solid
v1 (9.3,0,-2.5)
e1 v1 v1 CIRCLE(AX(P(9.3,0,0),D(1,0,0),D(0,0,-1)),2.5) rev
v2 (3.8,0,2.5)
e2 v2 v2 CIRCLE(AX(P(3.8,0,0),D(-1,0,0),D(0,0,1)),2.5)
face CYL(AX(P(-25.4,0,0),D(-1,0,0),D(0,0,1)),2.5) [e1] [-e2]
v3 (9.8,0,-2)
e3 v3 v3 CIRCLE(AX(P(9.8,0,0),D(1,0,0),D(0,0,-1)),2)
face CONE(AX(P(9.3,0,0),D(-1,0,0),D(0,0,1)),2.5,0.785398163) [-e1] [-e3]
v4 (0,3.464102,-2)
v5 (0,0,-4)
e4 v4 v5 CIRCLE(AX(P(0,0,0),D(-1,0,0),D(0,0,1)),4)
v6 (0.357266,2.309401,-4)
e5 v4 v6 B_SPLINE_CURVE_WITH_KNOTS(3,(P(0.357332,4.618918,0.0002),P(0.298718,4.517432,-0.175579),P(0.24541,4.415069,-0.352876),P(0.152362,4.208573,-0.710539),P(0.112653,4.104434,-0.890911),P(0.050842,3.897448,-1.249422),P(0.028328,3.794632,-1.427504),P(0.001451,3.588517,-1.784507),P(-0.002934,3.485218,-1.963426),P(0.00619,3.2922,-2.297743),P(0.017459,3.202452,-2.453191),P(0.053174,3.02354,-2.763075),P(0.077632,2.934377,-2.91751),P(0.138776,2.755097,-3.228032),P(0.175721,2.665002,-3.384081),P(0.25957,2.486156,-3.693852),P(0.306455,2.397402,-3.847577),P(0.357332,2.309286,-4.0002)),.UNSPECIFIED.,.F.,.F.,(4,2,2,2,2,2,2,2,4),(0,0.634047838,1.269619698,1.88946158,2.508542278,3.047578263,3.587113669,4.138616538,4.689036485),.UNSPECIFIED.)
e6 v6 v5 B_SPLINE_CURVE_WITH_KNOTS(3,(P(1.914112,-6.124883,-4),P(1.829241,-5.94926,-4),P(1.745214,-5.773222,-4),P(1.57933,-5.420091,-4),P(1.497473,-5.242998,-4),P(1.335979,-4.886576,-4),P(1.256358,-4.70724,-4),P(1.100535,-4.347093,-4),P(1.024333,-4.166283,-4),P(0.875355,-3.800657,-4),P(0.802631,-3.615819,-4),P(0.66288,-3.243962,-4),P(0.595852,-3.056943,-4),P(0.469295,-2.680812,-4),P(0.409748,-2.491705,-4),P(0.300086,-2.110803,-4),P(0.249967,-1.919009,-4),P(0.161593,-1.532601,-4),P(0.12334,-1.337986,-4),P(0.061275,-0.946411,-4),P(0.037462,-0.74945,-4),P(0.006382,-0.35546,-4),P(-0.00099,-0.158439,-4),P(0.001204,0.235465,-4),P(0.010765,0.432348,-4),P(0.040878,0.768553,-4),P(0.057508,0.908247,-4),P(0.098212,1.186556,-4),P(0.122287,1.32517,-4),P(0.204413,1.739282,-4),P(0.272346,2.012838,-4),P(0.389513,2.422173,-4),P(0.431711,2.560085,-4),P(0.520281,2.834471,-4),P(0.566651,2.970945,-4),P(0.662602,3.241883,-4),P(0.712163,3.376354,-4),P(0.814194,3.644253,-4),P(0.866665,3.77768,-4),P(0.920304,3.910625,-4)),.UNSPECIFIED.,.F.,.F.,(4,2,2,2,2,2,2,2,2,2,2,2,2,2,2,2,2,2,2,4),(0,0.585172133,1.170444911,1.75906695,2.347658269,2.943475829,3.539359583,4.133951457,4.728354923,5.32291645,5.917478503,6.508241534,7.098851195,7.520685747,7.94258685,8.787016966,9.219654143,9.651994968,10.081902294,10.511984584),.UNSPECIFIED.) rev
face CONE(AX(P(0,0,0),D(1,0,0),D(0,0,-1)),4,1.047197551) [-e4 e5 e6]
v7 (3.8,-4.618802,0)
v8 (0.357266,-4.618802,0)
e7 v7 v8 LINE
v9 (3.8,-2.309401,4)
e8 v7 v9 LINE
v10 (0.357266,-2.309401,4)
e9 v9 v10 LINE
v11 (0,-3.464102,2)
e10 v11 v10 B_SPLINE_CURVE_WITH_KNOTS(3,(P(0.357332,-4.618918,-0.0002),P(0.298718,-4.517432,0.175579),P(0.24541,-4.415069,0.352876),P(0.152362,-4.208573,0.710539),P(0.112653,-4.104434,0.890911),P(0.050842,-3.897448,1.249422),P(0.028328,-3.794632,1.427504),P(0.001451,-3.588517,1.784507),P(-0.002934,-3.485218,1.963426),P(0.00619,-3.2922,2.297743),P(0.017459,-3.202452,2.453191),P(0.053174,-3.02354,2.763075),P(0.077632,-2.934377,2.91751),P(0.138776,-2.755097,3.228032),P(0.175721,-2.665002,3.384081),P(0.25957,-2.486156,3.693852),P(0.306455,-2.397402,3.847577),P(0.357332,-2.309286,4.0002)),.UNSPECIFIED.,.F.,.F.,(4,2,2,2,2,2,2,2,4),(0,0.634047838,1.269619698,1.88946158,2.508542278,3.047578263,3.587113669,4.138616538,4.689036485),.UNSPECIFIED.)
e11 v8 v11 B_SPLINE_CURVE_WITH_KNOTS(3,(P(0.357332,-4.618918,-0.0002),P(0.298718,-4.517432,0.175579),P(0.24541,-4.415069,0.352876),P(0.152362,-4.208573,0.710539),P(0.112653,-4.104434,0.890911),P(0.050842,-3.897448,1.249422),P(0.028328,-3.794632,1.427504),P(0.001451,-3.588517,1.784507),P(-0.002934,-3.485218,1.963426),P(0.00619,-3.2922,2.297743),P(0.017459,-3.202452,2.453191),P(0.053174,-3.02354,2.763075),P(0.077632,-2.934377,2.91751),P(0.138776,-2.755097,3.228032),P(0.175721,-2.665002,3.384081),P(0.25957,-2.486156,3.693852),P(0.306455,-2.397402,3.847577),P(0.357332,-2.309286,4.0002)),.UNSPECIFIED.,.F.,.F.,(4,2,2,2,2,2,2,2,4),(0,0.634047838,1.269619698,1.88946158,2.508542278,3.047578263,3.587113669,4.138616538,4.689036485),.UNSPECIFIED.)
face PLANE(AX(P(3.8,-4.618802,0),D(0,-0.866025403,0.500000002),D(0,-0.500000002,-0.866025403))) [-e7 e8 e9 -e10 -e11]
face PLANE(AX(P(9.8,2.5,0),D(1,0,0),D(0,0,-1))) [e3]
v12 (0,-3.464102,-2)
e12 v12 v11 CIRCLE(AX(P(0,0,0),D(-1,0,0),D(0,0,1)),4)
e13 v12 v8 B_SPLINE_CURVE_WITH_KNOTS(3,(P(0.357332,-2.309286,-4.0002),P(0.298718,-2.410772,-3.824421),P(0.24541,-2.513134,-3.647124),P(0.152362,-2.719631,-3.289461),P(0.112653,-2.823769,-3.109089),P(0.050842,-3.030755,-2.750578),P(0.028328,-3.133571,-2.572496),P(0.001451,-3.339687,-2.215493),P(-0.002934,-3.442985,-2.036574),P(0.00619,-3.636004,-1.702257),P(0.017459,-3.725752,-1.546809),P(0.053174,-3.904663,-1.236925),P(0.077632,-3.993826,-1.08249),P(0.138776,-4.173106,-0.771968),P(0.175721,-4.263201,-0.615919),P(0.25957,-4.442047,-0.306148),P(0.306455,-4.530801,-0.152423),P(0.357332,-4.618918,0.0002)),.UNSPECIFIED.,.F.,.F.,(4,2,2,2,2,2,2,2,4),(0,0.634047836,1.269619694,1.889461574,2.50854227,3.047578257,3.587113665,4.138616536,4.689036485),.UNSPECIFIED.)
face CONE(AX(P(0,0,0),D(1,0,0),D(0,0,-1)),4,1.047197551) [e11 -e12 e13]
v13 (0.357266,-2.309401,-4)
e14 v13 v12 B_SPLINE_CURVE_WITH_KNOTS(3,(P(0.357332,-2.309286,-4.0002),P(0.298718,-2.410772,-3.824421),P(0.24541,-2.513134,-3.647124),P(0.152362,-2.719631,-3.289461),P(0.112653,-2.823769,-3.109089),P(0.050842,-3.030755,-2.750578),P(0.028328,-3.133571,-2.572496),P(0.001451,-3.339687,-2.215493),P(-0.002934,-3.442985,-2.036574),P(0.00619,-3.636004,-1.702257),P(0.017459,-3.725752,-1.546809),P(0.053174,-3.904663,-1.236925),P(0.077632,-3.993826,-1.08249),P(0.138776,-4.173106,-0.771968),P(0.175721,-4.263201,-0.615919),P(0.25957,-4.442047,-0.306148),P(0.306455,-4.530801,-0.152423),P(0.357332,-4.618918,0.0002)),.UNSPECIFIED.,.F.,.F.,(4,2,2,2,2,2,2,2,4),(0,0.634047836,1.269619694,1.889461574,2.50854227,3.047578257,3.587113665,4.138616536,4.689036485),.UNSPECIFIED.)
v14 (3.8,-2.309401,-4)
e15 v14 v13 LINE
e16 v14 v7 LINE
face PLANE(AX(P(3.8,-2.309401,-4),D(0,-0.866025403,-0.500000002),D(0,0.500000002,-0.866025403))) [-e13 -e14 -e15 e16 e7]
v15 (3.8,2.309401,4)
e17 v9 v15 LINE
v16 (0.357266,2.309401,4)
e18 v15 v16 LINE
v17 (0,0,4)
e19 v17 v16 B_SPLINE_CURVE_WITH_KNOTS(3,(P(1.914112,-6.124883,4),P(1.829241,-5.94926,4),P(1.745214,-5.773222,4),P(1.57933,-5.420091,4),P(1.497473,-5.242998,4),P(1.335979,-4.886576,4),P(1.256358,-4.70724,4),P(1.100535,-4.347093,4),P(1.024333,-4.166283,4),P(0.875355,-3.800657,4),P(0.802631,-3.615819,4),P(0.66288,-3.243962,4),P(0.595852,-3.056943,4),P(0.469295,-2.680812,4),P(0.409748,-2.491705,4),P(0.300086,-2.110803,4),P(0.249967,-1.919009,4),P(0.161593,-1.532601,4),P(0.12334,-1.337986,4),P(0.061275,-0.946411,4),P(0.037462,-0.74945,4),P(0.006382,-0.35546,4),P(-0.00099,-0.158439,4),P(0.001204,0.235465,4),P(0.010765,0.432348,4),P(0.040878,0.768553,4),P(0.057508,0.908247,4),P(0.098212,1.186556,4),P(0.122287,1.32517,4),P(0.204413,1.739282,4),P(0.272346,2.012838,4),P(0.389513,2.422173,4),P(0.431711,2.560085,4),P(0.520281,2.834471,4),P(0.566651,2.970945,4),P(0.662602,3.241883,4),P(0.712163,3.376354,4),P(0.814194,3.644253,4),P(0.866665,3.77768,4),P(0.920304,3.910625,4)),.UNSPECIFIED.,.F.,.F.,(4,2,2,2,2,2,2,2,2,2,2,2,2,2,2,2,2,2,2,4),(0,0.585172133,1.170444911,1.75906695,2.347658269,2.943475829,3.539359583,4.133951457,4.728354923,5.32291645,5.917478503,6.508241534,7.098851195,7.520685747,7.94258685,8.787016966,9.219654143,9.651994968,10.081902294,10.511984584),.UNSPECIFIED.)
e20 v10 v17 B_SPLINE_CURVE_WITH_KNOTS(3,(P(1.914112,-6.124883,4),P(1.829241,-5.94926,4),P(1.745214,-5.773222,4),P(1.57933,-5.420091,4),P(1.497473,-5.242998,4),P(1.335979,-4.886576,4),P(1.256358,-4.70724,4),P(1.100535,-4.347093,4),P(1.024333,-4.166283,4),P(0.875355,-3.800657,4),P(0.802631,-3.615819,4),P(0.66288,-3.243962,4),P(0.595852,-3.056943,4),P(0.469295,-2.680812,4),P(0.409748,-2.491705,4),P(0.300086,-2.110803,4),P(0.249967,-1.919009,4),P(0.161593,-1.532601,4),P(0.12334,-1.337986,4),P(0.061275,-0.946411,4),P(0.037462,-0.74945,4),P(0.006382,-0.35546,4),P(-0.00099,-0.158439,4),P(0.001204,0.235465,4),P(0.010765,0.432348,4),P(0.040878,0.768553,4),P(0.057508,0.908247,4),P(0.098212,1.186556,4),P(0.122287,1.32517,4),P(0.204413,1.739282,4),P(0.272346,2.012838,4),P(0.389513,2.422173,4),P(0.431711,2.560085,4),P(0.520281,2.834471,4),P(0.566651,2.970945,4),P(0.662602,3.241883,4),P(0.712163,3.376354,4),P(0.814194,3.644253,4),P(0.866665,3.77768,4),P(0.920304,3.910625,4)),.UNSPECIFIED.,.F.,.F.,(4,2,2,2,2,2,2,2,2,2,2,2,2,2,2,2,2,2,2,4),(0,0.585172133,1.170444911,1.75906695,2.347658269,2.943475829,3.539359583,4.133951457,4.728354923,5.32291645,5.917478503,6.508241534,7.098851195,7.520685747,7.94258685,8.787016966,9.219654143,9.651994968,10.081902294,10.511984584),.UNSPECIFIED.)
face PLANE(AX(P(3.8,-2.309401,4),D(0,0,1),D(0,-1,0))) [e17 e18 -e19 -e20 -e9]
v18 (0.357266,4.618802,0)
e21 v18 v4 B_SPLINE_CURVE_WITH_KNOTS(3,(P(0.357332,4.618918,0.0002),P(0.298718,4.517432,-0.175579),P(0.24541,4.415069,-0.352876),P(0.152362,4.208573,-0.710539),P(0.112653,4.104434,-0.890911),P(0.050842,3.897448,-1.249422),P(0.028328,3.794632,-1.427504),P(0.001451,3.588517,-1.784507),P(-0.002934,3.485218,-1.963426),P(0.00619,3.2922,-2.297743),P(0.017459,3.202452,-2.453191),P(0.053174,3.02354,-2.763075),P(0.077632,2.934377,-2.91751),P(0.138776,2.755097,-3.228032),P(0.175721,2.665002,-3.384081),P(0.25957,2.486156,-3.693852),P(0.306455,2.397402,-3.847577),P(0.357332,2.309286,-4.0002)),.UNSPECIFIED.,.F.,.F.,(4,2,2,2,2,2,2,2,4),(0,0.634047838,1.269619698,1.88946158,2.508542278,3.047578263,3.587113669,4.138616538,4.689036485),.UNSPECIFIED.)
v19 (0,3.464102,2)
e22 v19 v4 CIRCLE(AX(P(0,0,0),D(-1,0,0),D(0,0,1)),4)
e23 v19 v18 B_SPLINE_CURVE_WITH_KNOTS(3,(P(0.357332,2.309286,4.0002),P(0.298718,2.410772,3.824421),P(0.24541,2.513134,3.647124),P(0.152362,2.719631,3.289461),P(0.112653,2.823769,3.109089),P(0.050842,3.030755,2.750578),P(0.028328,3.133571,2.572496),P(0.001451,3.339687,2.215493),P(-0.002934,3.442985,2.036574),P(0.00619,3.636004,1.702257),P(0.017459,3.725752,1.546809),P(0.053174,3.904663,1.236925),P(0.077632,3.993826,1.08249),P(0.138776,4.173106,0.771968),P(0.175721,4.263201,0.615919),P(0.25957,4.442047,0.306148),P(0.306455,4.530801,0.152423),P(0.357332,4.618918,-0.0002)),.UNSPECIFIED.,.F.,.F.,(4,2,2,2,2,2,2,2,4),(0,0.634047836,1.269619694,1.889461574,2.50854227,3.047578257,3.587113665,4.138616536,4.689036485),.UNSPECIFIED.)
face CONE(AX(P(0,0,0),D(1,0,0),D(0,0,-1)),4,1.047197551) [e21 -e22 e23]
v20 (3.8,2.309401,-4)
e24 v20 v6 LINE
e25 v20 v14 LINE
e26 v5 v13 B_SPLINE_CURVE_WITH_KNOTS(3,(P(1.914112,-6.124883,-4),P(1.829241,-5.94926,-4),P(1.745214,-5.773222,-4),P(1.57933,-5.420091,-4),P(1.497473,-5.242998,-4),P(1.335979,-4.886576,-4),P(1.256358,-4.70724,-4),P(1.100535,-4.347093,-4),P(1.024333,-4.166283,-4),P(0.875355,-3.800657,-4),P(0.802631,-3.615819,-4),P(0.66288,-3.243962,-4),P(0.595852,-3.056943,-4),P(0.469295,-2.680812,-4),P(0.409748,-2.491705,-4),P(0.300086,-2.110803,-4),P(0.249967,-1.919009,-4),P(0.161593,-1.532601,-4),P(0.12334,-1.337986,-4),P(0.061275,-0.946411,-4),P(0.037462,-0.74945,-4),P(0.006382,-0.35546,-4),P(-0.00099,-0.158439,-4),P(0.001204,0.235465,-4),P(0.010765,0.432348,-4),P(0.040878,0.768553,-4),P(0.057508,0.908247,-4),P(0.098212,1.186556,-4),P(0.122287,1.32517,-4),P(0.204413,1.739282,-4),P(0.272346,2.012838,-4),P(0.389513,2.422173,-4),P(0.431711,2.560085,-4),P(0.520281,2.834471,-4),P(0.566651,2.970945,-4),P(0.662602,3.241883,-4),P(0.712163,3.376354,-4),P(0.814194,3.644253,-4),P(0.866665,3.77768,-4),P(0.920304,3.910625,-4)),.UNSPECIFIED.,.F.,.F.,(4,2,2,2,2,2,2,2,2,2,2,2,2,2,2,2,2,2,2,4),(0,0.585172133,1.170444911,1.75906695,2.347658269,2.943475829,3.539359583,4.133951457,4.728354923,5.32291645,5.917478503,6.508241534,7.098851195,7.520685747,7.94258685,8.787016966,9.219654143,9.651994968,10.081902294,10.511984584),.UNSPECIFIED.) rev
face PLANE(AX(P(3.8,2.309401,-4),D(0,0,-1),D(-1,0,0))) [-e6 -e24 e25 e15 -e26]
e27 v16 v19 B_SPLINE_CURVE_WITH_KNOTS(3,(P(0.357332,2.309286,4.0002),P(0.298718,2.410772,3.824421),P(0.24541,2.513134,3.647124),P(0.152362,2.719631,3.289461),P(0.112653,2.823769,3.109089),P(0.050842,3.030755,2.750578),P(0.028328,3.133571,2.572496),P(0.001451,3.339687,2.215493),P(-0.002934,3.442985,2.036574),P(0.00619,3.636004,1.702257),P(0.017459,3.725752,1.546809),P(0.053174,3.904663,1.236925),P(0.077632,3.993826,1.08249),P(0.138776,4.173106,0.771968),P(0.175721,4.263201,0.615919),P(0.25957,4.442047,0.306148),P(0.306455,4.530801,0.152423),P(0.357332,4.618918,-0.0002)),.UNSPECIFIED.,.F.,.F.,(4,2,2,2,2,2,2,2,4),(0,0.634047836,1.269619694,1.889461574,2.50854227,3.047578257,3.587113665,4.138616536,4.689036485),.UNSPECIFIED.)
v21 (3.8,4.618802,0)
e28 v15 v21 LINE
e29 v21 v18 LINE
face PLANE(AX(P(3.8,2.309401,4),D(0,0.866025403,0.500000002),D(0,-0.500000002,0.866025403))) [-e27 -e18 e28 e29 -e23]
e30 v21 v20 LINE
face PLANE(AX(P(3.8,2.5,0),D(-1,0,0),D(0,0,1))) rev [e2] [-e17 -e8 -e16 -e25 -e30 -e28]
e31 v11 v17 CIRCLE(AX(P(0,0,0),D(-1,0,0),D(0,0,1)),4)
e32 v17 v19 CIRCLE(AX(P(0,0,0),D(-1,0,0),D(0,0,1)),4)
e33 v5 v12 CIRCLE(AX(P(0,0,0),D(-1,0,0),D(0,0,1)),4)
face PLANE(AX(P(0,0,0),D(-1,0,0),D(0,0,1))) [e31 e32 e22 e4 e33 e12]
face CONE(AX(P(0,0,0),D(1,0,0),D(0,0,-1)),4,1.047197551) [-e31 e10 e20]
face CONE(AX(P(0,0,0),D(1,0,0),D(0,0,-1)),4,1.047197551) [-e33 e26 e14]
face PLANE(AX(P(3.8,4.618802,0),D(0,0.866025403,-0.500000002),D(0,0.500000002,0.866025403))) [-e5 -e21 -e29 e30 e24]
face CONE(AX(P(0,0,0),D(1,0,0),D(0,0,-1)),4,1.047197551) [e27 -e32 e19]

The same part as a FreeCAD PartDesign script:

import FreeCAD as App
import Part
import Sketcher

V = App.Vector
Q = App.Units.Quantity


def edges_at(feature, points):
    """Names of the edges that pass closest to the given points."""
    edges = feature.Shape.Edges
    near = lambda p: min(range(len(edges)), key=lambda i: edges[i].distToShape(Part.Vertex(*p))[0])
    return sorted({f"Edge{near(p) + 1}" for p in points})


def add_polygon(sketch, points):
    """Adds a closed chain of lines whose ends are joined by coincident constraints."""
    first, n = sketch.GeometryCount, len(points)
    for a, b in zip(points, points[1:] + points[:1]):
        sketch.addGeometry(Part.LineSegment(App.Vector(*a, 0), App.Vector(*b, 0)), False)
    for i in range(n):
        sketch.addConstraint(Sketcher.Constraint("Coincident", first + i, 2, first + (i + 1) % n, 1))

doc = App.newDocument("Part")
body = doc.addObject("PartDesign::Body", "Body")

# Sketch on XY plane
sketch1 = body.newObject("Sketcher::SketchObject", "Sketch")
sketch1.AttachmentSupport = (doc.getObject("XY_Plane"), [""])
sketch1.MapMode = "FlatFace"
add_polygon(sketch1, [(3.8, 2.5), (3.8, 4.618938), (0.357344, 4.618938), (0, 4), (0, 0), (9.8, 0), (9.8, 2.5)])  # lines 0-6
sketch1.addConstraint([
    Sketcher.Constraint("Vertical", 0),
    Sketcher.Constraint("Horizontal", 1),
    Sketcher.Constraint("Vertical", 3),
    Sketcher.Constraint("Horizontal", 4),
    Sketcher.Constraint("Vertical", 5),
    Sketcher.Constraint("Horizontal", 6),
    Sketcher.Constraint("Coincident", 3, 2, -1, 1),
    Sketcher.Constraint("DistanceX", 6, 2, 6, 1, Q("6 mm")),
    Sketcher.Constraint("DistanceY", 3, 2, 3, 1, Q("4 mm")),
    Sketcher.Constraint("Angle", 2, Q("-120 deg")),
    Sketcher.Constraint("DistanceX", 4, 1, 4, 2, Q("9.8 mm")),
    Sketcher.Constraint("DistanceY", 5, 1, 5, 2, Q("2.5 mm")),
    Sketcher.Constraint("DistanceX", 1, 2, 1, 1, Q("3.442656 mm")),
])
revolution = body.newObject("PartDesign::Revolution", "Revolution")
revolution.Profile = sketch1
revolution.ReferenceAxis = (sketch1, ["H_Axis"])
revolution.Angle = 360

# Sketch on YZ plane
sketch2 = body.newObject("Sketcher::SketchObject", "Sketch001")
sketch2.AttachmentSupport = (doc.getObject("YZ_Plane"), [""])
sketch2.MapMode = "FlatFace"
sketch2.addGeometry(Part.Circle(V(0, 0, 0), V(0, 0, 1), 4.665127), False)  # 0
add_polygon(sketch2, [(-2.309401, 4), (2.309401, 4), (4.618802, 0), (2.309401, -4), (-2.309401, -4), (-4.618802, 0)])  # lines 1-6
sketch2.addConstraint([
    Sketcher.Constraint("Horizontal", 1),
    Sketcher.Constraint("Horizontal", 4),
    Sketcher.Constraint("Coincident", 0, 3, -1, 1),
    Sketcher.Constraint("Symmetric", 1, 2, 4, 2, -1, 1),
    Sketcher.Constraint("Symmetric", 2, 2, 5, 2, -1, 1),
    Sketcher.Constraint("PointOnObject", 2, 2, -1),
    Sketcher.Constraint("Parallel", 3, 6),
    Sketcher.Constraint("Vertical", 1, 2, 3, 2),
    Sketcher.Constraint("Angle", 2, Q("-60 deg")),
    Sketcher.Constraint("DistanceY", -1, 1, 1, 2, Q("4 mm")),
    Sketcher.Constraint("Diameter", 0, Q("9.330254 mm")),
    Sketcher.Constraint("DistanceX", -1, 1, 1, 2, Q("2.309401 mm")),
])
pocket1 = body.newObject("PartDesign::Pocket", "Pocket")
pocket1.Profile = sketch2
pocket1.Length = 3.8
pocket1.Reversed = True
doc.recompute()

chamfer = body.newObject("PartDesign::Chamfer", "Chamfer")
chamfer.Base = (pocket1, edges_at(pocket1, [(9.8, 0, -2.5)]))
chamfer.Size = 0.5

doc.recompute()
